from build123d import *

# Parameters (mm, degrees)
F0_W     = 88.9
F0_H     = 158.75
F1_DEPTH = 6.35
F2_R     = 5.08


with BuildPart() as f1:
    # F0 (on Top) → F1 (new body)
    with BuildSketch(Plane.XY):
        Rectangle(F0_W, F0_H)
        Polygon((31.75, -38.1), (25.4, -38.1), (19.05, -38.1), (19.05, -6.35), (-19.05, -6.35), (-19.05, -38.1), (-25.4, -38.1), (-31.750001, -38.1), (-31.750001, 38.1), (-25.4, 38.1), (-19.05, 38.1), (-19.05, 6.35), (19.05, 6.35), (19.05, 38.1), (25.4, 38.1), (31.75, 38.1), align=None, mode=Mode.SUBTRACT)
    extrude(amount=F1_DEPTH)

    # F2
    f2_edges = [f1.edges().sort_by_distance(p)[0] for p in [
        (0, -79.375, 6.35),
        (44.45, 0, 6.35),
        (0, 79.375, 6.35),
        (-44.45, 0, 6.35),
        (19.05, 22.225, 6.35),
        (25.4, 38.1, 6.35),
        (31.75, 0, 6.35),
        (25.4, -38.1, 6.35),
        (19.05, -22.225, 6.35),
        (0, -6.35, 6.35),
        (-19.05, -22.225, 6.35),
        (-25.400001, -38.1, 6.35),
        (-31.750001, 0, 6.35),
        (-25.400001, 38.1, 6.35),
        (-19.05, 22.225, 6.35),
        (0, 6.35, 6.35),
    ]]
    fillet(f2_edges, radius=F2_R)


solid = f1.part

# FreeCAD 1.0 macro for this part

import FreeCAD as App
import Part
import Sketcher

V = App.Vector
Q = App.Units.Quantity


def edges_at(feature, points):
    """Names of the edges that pass closest to the given points."""
    edges = feature.Shape.Edges
    near = lambda p: min(range(len(edges)), key=lambda i: edges[i].distToShape(Part.Vertex(*p))[0])
    return sorted({f"Edge{near(p) + 1}" for p in points})


def add_polygon(sketch, points):
    """Adds a closed chain of lines whose ends are joined by coincident constraints."""
    first, n = sketch.GeometryCount, len(points)
    for a, b in zip(points, points[1:] + points[:1]):
        sketch.addGeometry(Part.LineSegment(App.Vector(*a, 0), App.Vector(*b, 0)), False)
    for i in range(n):
        sketch.addConstraint(Sketcher.Constraint("Coincident", first + i, 2, first + (i + 1) % n, 1))

doc = App.newDocument("Part")
body = doc.addObject("PartDesign::Body", "Body")

# Sketch on XY plane
sketch1 = body.newObject("Sketcher::SketchObject", "Sketch")
sketch1.AttachmentSupport = (doc.getObject("XY_Plane"), [""])
sketch1.MapMode = "FlatFace"
add_polygon(sketch1, [(-44.45, 79.375), (-44.45, -79.375), (44.45, -79.375), (44.45, 79.375)])  # lines 0-3
add_polygon(sketch1, [(31.75, 38.1), (31.75, -38.1), (19.05, -38.1), (19.05, -6.35), (-19.05, -6.35), (-19.05, -38.1), (-31.750001, -38.1), (-31.750001, 38.1), (-19.05, 38.1), (-19.05, 6.35), (19.05, 6.35), (19.05, 38.1)])  # lines 4-15
sketch1.addConstraint([
    Sketcher.Constraint("Vertical", 0),
    Sketcher.Constraint("Horizontal", 1),
    Sketcher.Constraint("Vertical", 2),
    Sketcher.Constraint("Horizontal", 3),
    Sketcher.Constraint("Vertical", 4),
    Sketcher.Constraint("Horizontal", 5),
    Sketcher.Constraint("Vertical", 6),
    Sketcher.Constraint("Horizontal", 7),
    Sketcher.Constraint("Vertical", 8),
    Sketcher.Constraint("Horizontal", 9),
    Sketcher.Constraint("Vertical", 10),
    Sketcher.Constraint("Horizontal", 11),
    Sketcher.Constraint("Vertical", 12),
    Sketcher.Constraint("Horizontal", 13),
    Sketcher.Constraint("Vertical", 14),
    Sketcher.Constraint("Horizontal", 15),
    Sketcher.Constraint("Symmetric", 0, 2, 2, 2, -1, 1),
    Sketcher.Constraint("Symmetric", 4, 2, 10, 2, -1, 1),
    Sketcher.Constraint("Symmetric", 6, 2, 12, 2, -1, 1),
    Sketcher.Constraint("Symmetric", 8, 2, 14, 2, -1, 1),
    Sketcher.Constraint("Symmetric", 5, 2, 8, 2, -2),
    Sketcher.Constraint("DistanceY", 4, 2, 4, 1, Q("3 in")),
    Sketcher.Constraint("DistanceX", 1, 1, 1, 2, Q("3.5 in")),
    Sketcher.Constraint("DistanceX", 5, 2, 5, 1, Q("0.5 in")),
    Sketcher.Constraint("DistanceX", 7, 2, 7, 1, Q("1.5 in")),
    Sketcher.Constraint("DistanceY", 0, 2, 0, 1, Q("6.25 in")),
    Sketcher.Constraint("DistanceY", 6, 1, 6, 2, Q("1.25 in")),
])
pad1 = body.newObject("PartDesign::Pad", "Pad")
pad1.Profile = sketch1
pad1.Length = Q("0.25 in")
doc.recompute()

fillet = body.newObject("PartDesign::Fillet", "Fillet")
fillet.Base = (pad1, edges_at(pad1, [
    (0, -79.375, 6.35),
    (44.45, 0, 6.35),
    (0, 79.375, 6.35),
    (-44.45, 0, 6.35),
    (19.05, 22.225, 6.35),
    (25.4, 38.1, 6.35),
    (31.75, 0, 6.35),
    (25.4, -38.1, 6.35),
    (19.05, -22.225, 6.35),
    (0, -6.35, 6.35),
    (-19.05, -22.225, 6.35),
    (-25.4, -38.1, 6.35),
    (-31.75, 0, 6.35),
    (-25.4, 38.1, 6.35),
    (-19.05, 22.225, 6.35),
    (0, 6.35, 6.35),
]))
fillet.Radius = Q("0.2 in")

doc.recompute()
